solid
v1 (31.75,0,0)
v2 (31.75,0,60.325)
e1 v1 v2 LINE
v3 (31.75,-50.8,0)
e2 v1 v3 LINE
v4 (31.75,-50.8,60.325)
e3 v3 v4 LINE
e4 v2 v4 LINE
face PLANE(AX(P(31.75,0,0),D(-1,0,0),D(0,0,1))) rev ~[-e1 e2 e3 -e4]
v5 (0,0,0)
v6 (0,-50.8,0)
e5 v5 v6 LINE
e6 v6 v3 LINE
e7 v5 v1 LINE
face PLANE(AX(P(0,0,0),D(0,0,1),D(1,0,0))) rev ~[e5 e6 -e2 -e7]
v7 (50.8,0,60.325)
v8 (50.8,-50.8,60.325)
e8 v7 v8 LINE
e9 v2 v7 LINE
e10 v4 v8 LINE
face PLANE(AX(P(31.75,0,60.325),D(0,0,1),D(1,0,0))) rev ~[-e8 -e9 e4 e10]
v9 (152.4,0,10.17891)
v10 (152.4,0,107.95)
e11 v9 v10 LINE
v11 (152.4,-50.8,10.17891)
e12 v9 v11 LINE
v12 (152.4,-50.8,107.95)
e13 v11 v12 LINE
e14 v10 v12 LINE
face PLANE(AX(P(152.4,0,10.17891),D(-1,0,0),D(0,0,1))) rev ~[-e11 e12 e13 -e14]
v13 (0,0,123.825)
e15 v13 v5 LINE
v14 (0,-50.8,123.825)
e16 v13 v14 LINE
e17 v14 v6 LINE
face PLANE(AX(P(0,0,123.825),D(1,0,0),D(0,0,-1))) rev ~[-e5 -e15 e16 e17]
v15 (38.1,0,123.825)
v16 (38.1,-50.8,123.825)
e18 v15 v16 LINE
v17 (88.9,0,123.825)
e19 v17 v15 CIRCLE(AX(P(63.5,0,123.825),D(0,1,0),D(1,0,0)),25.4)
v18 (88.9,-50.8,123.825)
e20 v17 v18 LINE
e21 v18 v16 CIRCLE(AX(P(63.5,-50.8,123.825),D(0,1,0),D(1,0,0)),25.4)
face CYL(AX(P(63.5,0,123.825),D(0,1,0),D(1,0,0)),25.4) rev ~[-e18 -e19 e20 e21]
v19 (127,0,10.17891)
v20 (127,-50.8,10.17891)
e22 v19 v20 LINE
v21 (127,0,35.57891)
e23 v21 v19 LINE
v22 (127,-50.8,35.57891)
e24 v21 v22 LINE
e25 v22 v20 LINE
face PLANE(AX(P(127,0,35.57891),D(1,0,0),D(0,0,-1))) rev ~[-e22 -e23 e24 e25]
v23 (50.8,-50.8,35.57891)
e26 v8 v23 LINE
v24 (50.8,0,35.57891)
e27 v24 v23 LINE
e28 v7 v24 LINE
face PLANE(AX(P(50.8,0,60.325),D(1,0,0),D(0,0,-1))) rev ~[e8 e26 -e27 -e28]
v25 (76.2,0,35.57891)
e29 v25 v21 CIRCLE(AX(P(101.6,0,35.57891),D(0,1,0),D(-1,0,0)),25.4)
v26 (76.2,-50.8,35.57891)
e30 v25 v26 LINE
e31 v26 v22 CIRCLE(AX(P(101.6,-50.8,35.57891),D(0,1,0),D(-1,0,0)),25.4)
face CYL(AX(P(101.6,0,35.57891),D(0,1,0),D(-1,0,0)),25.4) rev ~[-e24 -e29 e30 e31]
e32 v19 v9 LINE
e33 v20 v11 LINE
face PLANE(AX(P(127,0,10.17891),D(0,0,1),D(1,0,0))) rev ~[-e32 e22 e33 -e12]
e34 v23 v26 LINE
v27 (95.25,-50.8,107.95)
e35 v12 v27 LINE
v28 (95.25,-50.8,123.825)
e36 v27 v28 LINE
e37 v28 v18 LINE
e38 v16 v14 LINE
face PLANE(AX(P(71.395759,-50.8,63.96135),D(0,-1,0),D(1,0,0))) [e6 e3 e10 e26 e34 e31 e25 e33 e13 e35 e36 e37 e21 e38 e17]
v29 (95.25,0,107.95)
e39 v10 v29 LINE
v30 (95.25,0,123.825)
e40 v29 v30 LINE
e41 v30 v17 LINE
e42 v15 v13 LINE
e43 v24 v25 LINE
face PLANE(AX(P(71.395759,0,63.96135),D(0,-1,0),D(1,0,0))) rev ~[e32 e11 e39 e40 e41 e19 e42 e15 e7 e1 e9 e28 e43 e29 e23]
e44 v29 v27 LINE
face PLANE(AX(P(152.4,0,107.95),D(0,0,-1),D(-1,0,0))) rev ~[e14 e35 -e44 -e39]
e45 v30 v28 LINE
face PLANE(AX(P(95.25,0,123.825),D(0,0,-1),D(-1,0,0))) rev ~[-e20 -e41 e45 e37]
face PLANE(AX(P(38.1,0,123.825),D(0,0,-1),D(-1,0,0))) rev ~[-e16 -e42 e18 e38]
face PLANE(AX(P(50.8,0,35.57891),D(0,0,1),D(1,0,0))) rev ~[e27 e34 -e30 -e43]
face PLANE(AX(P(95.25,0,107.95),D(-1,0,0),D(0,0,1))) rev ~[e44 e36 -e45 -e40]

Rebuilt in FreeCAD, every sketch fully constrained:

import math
import FreeCAD as App
import Part
import Sketcher
from FreeCAD import Vector
Q = App.Units.Quantity

doc = App.newDocument("Part")
params = doc.addObject("Spreadsheet::Sheet", "Params")
for row, (alias, value) in enumerate([
    ("sketch1_radius", "1 in"),
    ("sketch1_width", "1 in"),
    ("sketch1_width2", "1.5 in"),
    ("sketch1_width3", "1.25 in"),
    ("sketch1_width4", "2.25 in"),
    ("pad1_length", "2 in"),
], start=1):
    params.set(f"A{row}", alias)
    params.set(f"B{row}", "=" + value)
    params.setAlias(f"B{row}", alias)

body = doc.addObject("PartDesign::Body", "Body")

sketch1 = body.newObject("Sketcher::SketchObject", "Sketch")
sketch1.AttachmentSupport = (doc.getObject("XZ_Plane"), [""])
sketch1.MapMode = "FlatFace"
sketch1.addGeometry(Part.LineSegment(Vector(0, 124, 0), Vector(0, 0, 0)), False)
sketch1.addGeometry(Part.LineSegment(Vector(0, 0, 0), Vector(32, 0, 0)), False)
sketch1.addGeometry(Part.LineSegment(Vector(32, 0, 0), Vector(32, 60, 0)), False)
sketch1.addGeometry(Part.LineSegment(Vector(32, 60, 0), Vector(51, 60, 0)), False)
sketch1.addGeometry(Part.LineSegment(Vector(51, 60, 0), Vector(51, 36, 0)), False)
sketch1.addGeometry(Part.LineSegment(Vector(51, 36, 0), Vector(76, 36, 0)), False)
sketch1.addGeometry(Part.ArcOfCircle(Part.Circle(Vector(102, 36, 0), Vector(0, 0, 1), 25), math.radians(0), math.radians(180)), False)
sketch1.addGeometry(Part.LineSegment(Vector(127, 36, 0), Vector(127, 10, 0)), False)
sketch1.addGeometry(Part.LineSegment(Vector(127, 10, 0), Vector(152, 10, 0)), False)
sketch1.addGeometry(Part.LineSegment(Vector(152, 10, 0), Vector(152, 108, 0)), False)
sketch1.addGeometry(Part.LineSegment(Vector(152, 108, 0), Vector(95, 108, 0)), False)
sketch1.addGeometry(Part.LineSegment(Vector(95, 108, 0), Vector(95, 124, 0)), False)
sketch1.addGeometry(Part.LineSegment(Vector(95, 124, 0), Vector(89, 124, 0)), False)
sketch1.addGeometry(Part.ArcOfCircle(Part.Circle(Vector(64, 124, 0), Vector(0, 0, 1), 25), math.radians(180), math.radians(360)), False)
sketch1.addGeometry(Part.LineSegment(Vector(38, 124, 0), Vector(0, 124, 0)), False)
sketch1.addConstraint(Sketcher.Constraint("Coincident", 0, 2, 1, 1))
sketch1.addConstraint(Sketcher.Constraint("Coincident", 1, 2, 2, 1))
sketch1.addConstraint(Sketcher.Constraint("Coincident", 2, 2, 3, 1))
sketch1.addConstraint(Sketcher.Constraint("Coincident", 3, 2, 4, 1))
sketch1.addConstraint(Sketcher.Constraint("Coincident", 4, 2, 5, 1))
sketch1.addConstraint(Sketcher.Constraint("Coincident", 5, 2, 6, 2))
sketch1.addConstraint(Sketcher.Constraint("Tangent", 6, 1, 7, 1))
sketch1.addConstraint(Sketcher.Constraint("Coincident", 7, 2, 8, 1))
sketch1.addConstraint(Sketcher.Constraint("Coincident", 8, 2, 9, 1))
sketch1.addConstraint(Sketcher.Constraint("Coincident", 9, 2, 10, 1))
sketch1.addConstraint(Sketcher.Constraint("Coincident", 10, 2, 11, 1))
sketch1.addConstraint(Sketcher.Constraint("Coincident", 11, 2, 12, 1))
sketch1.addConstraint(Sketcher.Constraint("Coincident", 12, 2, 13, 2))
sketch1.addConstraint(Sketcher.Constraint("Coincident", 13, 1, 14, 1))
sketch1.addConstraint(Sketcher.Constraint("Coincident", 14, 2, 0, 1))
sketch1.addConstraint(Sketcher.Constraint("Vertical", 0))
sketch1.addConstraint(Sketcher.Constraint("Horizontal", 1))
sketch1.addConstraint(Sketcher.Constraint("Vertical", 2))
sketch1.addConstraint(Sketcher.Constraint("Horizontal", 3))
sketch1.addConstraint(Sketcher.Constraint("Vertical", 4))
sketch1.addConstraint(Sketcher.Constraint("Horizontal", 5))
sketch1.addConstraint(Sketcher.Constraint("Vertical", 7))
sketch1.addConstraint(Sketcher.Constraint("Horizontal", 8))
sketch1.addConstraint(Sketcher.Constraint("Vertical", 9))
sketch1.addConstraint(Sketcher.Constraint("Horizontal", 10))
sketch1.addConstraint(Sketcher.Constraint("Vertical", 11))
sketch1.addConstraint(Sketcher.Constraint("Horizontal", 12))
sketch1.addConstraint(Sketcher.Constraint("Horizontal", 14))
sketch1.addConstraint(Sketcher.Constraint("Coincident", 0, 2, -1, 1))
sketch1.addConstraint(Sketcher.Constraint("Equal", 6, 13))
sketch1.addConstraint(Sketcher.Constraint("Horizontal", 6, 3, 4, 2))
sketch1.addConstraint(Sketcher.Constraint("Horizontal", 13, 3, 11, 2))
sketch1.addConstraint(Sketcher.Constraint("Horizontal", 12, 2, 13, 1))
sketch1.addConstraint(Sketcher.Constraint("Equal", 5, 8))
sketch1.addConstraint(Sketcher.Constraint("Equal", 8, 7))
sketch1.addConstraint(Sketcher.Constraint("Radius", 6, Q("1 in")))
sketch1.addConstraint(Sketcher.Constraint("DistanceX", 5, 1, 5, 2, Q("1 in")))
sketch1.addConstraint(Sketcher.Constraint("DistanceX", 14, 2, 14, 1, Q("1.5 in")))
sketch1.addConstraint(Sketcher.Constraint("DistanceX", -1, 1, 6, 3, Q("4 in")))
sketch1.addConstraint(Sketcher.Constraint("DistanceX", 1, 1, 1, 2, Q("1.25 in")))
sketch1.addConstraint(Sketcher.Constraint("DistanceX", 10, 2, 10, 1, Q("2.25 in")))
sketch1.addConstraint(Sketcher.Constraint("DistanceY", 2, 2, 13, 3, Q("2.5 in")))
sketch1.addConstraint(Sketcher.Constraint("DistanceY", 0, 2, 0, 1, Q("4.875 in")))
sketch1.addConstraint(Sketcher.Constraint("DistanceY", 11, 1, 11, 2, Q("0.625 in")))
sketch1.addConstraint(Sketcher.Constraint("DistanceY", 4, 2, 4, 1, Q("24.74609 mm")))
sketch1.setExpression("Constraints[35]", "Params.sketch1_radius")
sketch1.setExpression("Constraints[36]", "Params.sketch1_width")
sketch1.setExpression("Constraints[37]", "Params.sketch1_width2")
sketch1.setExpression("Constraints[39]", "Params.sketch1_width3")
sketch1.setExpression("Constraints[40]", "Params.sketch1_width4")
pad1 = body.newObject("PartDesign::Pad", "Pad")
pad1.Profile = sketch1
pad1.setExpression("Length", "Params.pad1_length")

doc.recompute()
